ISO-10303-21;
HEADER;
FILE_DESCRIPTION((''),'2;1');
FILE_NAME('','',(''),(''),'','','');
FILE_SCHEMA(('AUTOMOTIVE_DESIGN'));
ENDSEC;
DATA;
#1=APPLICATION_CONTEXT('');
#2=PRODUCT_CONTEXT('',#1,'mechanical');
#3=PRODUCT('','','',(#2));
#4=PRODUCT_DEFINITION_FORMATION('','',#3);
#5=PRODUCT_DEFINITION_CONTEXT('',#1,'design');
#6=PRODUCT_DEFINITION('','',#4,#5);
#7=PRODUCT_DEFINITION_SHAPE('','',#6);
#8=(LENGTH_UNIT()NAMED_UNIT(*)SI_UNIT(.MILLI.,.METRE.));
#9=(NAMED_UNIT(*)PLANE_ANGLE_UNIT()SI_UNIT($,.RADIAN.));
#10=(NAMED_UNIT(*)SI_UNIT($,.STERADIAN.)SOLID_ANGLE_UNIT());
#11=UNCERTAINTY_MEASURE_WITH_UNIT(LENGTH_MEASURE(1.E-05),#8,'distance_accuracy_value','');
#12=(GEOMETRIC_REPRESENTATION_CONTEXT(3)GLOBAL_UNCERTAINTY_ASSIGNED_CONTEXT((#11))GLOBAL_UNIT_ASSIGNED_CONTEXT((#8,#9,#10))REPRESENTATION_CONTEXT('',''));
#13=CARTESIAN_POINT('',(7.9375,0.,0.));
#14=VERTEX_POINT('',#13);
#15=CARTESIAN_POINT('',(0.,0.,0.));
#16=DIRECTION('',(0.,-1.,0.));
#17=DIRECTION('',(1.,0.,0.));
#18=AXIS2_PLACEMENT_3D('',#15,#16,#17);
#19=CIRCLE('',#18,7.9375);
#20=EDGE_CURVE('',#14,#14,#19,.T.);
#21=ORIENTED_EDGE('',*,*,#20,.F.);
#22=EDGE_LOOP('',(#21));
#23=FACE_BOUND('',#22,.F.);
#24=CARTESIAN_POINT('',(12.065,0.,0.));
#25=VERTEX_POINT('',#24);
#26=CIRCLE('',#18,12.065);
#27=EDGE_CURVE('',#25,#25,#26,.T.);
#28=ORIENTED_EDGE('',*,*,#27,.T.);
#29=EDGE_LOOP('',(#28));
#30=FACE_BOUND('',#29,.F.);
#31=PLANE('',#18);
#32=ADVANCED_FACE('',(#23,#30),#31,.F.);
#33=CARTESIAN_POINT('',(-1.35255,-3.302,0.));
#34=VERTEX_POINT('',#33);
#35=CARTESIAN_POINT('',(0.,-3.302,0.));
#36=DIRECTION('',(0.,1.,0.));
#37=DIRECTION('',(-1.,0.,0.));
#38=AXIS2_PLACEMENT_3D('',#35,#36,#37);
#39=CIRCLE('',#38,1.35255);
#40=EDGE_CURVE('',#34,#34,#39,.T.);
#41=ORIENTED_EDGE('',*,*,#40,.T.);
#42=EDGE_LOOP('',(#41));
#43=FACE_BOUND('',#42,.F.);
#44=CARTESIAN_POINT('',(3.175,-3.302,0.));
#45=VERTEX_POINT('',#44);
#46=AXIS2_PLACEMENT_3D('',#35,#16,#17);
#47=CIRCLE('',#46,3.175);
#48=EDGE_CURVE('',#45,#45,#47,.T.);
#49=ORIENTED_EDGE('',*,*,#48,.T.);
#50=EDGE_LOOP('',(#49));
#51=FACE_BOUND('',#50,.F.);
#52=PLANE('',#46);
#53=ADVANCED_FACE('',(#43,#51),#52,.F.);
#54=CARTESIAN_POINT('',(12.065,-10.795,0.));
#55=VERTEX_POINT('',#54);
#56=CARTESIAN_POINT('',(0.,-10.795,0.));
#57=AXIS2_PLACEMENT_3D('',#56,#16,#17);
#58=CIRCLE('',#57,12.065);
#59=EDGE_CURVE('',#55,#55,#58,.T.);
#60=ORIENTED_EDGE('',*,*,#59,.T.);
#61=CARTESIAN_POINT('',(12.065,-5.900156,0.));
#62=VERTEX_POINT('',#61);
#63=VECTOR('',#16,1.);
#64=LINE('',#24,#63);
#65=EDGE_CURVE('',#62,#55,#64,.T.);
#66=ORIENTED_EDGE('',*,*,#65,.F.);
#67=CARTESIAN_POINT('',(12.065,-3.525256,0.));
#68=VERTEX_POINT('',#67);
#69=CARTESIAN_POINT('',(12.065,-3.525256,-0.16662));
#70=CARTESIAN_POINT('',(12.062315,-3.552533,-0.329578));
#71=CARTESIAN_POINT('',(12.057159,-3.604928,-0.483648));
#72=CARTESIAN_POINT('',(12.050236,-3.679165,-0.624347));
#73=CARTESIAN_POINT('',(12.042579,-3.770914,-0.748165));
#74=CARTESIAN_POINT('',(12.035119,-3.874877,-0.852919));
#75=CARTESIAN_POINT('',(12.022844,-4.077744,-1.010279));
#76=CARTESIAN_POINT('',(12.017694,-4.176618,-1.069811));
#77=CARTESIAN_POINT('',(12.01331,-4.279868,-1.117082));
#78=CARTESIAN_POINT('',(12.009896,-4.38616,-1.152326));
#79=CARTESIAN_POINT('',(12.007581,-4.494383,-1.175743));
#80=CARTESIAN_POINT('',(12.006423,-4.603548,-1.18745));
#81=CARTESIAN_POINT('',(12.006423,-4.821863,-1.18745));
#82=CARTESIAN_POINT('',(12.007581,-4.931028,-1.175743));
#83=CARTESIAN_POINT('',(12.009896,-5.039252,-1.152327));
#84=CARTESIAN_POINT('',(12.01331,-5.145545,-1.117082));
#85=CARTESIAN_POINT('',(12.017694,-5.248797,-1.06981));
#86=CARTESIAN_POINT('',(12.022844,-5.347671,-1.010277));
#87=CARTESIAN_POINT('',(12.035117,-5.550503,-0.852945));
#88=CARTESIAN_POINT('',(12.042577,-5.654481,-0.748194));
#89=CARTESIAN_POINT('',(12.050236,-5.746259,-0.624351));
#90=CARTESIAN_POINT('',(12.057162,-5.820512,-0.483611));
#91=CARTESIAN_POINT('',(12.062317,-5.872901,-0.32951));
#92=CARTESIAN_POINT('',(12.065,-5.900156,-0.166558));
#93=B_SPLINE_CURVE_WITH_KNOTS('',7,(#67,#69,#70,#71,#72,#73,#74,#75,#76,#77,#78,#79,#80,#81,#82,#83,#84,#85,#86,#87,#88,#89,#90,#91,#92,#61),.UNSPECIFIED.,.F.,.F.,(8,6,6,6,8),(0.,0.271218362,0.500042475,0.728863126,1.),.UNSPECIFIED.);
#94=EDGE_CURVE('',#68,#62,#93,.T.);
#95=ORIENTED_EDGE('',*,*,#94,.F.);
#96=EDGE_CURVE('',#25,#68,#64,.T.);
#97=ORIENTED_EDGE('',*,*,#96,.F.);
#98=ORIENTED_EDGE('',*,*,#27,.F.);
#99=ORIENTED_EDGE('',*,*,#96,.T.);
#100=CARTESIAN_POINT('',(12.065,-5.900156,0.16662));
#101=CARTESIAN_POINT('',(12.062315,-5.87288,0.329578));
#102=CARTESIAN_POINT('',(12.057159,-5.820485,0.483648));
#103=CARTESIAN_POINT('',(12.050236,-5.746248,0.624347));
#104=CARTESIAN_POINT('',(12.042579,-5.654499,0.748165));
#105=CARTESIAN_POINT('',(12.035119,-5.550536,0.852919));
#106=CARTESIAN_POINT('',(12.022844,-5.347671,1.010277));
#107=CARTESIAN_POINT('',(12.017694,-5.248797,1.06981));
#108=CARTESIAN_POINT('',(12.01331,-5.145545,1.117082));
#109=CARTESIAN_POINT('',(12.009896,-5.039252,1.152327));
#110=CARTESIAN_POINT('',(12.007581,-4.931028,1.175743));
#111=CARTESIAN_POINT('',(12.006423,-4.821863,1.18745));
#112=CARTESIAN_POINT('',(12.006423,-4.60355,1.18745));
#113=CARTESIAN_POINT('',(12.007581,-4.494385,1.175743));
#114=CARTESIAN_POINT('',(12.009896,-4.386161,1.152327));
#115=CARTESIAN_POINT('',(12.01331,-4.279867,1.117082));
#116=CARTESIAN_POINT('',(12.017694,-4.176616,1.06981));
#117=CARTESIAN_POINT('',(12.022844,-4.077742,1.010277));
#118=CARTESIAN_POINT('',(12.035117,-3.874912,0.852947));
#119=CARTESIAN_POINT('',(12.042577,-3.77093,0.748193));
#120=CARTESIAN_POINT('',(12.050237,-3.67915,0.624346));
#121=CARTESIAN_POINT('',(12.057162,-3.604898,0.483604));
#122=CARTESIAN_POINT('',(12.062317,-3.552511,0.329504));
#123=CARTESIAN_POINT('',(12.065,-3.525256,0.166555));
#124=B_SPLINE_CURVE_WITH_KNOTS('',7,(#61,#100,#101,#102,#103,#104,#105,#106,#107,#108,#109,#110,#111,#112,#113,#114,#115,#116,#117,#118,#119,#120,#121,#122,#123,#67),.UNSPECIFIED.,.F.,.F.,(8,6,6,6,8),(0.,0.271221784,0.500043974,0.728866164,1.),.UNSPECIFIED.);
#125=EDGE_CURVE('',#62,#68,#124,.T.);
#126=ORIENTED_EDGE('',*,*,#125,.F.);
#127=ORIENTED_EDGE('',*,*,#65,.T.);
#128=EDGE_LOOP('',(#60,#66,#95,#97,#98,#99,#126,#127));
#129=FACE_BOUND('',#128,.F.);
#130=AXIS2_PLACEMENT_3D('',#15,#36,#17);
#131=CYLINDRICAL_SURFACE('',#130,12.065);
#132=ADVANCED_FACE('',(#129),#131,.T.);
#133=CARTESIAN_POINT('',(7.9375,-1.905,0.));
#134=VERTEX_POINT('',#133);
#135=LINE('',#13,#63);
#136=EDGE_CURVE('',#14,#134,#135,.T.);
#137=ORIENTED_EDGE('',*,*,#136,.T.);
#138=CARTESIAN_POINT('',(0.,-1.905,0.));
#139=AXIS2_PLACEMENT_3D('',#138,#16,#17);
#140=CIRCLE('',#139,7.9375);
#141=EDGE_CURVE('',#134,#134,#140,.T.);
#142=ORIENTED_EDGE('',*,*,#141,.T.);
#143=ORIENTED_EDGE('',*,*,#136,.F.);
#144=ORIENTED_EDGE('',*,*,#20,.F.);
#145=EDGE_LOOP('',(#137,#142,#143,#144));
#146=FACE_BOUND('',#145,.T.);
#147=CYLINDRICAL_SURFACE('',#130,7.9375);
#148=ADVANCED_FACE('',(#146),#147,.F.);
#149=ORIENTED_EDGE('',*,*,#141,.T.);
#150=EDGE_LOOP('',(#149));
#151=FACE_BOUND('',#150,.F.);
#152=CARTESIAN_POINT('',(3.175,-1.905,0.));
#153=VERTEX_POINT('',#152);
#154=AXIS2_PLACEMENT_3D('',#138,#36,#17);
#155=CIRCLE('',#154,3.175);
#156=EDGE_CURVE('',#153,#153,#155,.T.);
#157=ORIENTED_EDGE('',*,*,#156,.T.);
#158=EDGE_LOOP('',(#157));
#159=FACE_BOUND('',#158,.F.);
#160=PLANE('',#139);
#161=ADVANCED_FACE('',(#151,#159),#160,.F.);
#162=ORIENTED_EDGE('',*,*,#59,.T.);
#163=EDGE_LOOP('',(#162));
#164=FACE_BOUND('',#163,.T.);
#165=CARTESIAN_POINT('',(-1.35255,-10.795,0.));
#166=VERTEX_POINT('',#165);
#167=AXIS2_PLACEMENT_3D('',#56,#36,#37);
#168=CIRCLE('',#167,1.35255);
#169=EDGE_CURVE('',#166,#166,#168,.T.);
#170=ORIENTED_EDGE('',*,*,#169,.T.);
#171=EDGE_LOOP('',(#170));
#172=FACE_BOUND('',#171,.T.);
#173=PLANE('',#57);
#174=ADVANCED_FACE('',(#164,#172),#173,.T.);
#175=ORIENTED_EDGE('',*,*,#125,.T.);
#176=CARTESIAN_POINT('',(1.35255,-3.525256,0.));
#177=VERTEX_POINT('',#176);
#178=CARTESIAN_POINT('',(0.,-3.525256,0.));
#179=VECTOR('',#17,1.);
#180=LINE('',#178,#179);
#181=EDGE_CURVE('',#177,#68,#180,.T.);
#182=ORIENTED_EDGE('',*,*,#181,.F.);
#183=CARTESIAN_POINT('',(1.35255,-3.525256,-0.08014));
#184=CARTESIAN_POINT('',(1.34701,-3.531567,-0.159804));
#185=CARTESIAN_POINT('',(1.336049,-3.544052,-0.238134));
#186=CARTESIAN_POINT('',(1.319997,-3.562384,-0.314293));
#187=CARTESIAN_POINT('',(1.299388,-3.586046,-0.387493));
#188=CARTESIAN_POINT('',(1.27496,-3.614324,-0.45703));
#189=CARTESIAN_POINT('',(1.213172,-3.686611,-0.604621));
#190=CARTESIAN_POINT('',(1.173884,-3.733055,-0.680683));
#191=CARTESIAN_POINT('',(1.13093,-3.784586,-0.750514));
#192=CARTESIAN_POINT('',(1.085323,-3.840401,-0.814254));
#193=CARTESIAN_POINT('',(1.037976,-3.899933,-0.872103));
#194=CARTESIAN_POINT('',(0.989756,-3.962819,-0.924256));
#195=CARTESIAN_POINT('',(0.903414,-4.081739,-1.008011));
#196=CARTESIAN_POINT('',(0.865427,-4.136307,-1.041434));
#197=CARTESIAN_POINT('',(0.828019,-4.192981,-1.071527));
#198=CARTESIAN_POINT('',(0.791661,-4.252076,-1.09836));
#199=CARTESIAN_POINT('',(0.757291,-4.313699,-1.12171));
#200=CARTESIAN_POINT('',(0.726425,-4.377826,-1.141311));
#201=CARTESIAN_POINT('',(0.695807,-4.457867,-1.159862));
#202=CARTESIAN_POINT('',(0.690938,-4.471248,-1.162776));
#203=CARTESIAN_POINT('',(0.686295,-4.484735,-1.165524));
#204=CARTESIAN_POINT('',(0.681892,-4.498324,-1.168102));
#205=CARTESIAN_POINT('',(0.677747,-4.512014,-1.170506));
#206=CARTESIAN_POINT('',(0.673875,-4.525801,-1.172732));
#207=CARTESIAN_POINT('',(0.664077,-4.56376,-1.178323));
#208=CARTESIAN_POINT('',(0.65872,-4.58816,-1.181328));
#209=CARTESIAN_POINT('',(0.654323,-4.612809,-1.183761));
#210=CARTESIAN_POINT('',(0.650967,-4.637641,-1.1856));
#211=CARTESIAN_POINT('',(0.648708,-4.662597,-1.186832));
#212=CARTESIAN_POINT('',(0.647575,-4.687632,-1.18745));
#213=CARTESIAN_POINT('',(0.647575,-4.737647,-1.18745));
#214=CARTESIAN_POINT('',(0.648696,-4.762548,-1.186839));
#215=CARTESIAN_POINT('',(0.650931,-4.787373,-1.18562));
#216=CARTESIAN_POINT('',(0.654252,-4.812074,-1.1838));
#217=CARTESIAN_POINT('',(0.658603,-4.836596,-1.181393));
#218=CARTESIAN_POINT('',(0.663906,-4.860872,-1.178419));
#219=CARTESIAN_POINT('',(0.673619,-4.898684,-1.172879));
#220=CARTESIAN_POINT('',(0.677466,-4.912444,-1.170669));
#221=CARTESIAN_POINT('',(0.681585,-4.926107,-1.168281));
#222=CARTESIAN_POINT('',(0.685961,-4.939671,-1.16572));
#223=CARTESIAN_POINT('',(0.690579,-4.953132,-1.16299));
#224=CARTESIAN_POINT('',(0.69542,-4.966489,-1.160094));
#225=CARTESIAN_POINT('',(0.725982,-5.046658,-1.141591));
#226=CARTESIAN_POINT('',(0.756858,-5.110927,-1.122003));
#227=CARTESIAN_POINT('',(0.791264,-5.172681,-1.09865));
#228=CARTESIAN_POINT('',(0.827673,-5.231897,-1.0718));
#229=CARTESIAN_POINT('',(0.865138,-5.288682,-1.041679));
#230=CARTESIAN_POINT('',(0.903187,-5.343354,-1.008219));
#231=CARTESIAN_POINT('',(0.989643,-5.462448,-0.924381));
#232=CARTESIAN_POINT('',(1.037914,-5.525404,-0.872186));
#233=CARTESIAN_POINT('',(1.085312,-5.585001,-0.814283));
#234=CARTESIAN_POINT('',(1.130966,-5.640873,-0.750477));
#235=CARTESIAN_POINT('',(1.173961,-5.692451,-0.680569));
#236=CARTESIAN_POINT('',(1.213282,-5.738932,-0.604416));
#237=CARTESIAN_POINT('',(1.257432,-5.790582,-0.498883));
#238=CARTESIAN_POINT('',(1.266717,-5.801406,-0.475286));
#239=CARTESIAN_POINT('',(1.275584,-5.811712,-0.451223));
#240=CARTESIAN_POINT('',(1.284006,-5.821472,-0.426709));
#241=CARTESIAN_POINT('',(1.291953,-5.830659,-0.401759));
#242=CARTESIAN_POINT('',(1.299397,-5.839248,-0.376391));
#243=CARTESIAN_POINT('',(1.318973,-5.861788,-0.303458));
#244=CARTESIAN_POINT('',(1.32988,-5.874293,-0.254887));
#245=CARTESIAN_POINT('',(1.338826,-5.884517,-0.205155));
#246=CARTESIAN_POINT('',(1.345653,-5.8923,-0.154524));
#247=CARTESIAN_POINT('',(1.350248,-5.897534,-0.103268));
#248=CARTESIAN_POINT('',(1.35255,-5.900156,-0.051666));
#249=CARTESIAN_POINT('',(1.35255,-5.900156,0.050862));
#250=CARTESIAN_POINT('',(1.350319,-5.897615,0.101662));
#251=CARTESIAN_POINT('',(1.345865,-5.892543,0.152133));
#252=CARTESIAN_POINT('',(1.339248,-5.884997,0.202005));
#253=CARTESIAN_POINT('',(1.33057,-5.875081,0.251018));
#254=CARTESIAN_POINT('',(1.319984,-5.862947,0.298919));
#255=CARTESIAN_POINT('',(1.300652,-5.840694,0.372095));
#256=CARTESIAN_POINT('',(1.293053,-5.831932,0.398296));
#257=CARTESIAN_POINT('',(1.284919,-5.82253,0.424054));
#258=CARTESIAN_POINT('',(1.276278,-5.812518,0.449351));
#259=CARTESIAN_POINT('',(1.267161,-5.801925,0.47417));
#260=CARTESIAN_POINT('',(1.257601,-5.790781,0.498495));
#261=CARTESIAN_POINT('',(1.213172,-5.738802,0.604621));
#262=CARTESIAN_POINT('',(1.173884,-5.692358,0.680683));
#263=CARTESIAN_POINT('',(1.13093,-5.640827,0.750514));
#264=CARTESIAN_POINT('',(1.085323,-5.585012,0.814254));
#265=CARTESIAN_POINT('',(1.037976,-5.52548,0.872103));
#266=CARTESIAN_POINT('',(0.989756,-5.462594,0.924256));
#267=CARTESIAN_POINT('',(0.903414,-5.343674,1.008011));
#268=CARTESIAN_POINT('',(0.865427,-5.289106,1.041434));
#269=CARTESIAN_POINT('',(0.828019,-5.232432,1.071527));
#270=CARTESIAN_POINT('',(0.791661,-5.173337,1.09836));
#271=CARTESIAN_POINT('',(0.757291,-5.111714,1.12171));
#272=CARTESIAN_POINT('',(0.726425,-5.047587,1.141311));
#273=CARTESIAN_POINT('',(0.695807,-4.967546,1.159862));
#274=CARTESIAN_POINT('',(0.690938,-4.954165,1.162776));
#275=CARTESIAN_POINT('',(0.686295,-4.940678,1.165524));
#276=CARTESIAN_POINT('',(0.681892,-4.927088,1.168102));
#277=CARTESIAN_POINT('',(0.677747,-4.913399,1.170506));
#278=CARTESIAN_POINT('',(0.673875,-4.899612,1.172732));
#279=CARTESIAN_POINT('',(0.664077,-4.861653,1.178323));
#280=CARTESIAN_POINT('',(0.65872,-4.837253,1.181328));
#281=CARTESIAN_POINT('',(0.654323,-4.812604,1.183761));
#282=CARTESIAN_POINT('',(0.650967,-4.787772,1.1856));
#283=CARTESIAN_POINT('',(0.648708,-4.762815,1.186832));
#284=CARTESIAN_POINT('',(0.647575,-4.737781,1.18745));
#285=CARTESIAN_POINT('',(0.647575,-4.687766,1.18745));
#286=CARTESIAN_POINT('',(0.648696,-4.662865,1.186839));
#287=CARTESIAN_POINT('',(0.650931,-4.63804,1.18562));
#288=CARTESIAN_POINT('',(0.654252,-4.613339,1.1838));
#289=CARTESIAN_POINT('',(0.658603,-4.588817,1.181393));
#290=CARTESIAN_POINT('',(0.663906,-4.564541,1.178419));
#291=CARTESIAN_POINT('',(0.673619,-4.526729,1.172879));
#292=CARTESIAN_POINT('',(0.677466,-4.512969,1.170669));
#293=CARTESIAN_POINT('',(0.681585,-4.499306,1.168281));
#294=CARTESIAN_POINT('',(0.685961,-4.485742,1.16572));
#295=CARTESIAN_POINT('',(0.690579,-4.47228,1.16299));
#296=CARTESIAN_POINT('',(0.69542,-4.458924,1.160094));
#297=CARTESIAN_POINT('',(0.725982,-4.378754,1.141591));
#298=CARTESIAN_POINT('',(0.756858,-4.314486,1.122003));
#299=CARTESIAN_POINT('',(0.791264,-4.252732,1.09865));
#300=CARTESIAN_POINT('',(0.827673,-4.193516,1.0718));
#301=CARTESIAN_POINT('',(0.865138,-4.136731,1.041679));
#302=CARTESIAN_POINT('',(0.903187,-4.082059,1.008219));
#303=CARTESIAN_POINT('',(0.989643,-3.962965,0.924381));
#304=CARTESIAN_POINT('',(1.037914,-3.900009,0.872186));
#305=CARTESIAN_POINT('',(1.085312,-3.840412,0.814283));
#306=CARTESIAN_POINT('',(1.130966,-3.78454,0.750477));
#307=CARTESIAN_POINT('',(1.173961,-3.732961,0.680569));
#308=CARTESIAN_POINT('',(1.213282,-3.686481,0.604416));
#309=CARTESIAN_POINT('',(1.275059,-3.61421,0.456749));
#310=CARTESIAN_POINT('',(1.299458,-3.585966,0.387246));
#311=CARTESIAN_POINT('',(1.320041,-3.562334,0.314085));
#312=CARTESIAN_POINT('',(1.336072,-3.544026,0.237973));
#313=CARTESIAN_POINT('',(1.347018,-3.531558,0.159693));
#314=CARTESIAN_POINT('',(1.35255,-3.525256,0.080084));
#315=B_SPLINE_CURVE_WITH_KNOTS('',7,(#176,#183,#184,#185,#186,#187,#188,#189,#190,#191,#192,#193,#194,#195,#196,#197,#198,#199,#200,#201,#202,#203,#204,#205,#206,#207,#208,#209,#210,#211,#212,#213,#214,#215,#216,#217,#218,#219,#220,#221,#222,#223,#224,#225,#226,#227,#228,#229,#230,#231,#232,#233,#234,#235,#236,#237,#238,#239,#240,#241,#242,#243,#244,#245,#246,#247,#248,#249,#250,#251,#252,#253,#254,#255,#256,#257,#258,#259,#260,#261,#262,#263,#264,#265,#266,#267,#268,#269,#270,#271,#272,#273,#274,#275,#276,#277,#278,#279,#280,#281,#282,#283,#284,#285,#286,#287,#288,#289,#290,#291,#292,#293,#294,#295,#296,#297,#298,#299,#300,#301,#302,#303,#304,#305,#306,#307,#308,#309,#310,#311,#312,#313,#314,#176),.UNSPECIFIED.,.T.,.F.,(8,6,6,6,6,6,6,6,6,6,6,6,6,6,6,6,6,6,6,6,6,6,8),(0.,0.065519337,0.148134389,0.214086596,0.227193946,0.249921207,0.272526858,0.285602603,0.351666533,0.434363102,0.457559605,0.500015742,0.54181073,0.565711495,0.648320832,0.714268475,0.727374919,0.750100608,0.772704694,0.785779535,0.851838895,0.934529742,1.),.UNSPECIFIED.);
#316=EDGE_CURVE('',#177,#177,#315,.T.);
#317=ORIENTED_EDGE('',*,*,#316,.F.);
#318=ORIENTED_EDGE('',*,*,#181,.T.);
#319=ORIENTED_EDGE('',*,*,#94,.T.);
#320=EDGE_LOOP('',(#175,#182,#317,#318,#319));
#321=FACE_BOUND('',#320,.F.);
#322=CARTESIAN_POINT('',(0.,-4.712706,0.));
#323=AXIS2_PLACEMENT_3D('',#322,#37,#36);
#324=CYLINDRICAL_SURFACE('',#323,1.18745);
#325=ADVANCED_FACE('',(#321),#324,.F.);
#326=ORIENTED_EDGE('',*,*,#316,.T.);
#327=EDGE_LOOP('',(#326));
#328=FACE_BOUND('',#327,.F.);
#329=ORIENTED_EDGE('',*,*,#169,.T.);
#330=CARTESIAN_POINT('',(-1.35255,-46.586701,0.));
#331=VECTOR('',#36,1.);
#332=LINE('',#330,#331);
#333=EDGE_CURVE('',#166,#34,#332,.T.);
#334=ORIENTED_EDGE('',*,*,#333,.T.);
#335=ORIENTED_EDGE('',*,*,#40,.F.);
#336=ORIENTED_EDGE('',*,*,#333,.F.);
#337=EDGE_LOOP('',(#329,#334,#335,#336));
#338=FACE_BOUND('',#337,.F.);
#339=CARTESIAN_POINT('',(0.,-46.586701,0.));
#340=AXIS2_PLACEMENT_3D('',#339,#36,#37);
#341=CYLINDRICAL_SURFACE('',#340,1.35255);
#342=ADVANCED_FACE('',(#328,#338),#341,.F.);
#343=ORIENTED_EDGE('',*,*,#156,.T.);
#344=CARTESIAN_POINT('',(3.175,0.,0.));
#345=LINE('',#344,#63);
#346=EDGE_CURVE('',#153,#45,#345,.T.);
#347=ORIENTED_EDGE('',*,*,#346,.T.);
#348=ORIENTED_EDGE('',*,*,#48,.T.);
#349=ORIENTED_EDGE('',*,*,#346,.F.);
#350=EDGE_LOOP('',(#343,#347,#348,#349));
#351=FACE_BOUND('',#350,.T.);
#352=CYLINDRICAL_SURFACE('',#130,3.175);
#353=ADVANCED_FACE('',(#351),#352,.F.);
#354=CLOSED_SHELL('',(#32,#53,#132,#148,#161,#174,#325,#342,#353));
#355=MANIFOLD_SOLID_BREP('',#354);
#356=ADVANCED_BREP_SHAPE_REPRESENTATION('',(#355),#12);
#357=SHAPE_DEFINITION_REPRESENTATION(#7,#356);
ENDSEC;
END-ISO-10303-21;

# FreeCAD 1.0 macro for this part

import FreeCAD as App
import Part
import Sketcher

V = App.Vector
Q = App.Units.Quantity

doc = App.newDocument("Part")
params = doc.addObject("Spreadsheet::Sheet", "Params")
for row, (alias, value) in enumerate([
    ("sketch1_diameter", "0.95 in"),
    ("pad1_length", "0.425 in"),
    ("sketch2_diameter", "0.625 in"),
    ("pocket1_length", "0.075 in"),
    ("sketch3_diameter", "0.25 in"),
    ("pocket2_length", "0.13 in"),
    ("hole_diameter", "0.1065 in"),
], start=1):
    params.set(f"A{row}", alias)
    params.set(f"B{row}", "=" + value)
    params.setAlias(f"B{row}", alias)

body = doc.addObject("PartDesign::Body", "Body")

# Sketch on XZ plane
sketch1 = doc.addObject("Sketcher::SketchObject", "Sketch")
body.addObject(sketch1)
sketch1.AttachmentSupport = (doc.XZ_Plane, [""])
sketch1.MapMode = "FlatFace"
sketch1.addGeometry(Part.Circle(V(0, 0, 0), V(0, 0, 1), 12.065), False)
sketch1.addConstraint(Sketcher.Constraint("Coincident", 0, 3, -1, 1))
sketch1.addConstraint(Sketcher.Constraint("Diameter", 0, Q("0.95 in")))
sketch1.setExpression("Constraints[1]", "Params.sketch1_diameter")
pad1 = doc.addObject("PartDesign::Pad", "Pad")
body.addObject(pad1)
pad1.Profile = sketch1
pad1.setExpression("Length", "Params.pad1_length")

# Sketch on XZ plane
sketch2 = doc.addObject("Sketcher::SketchObject", "Sketch001")
body.addObject(sketch2)
sketch2.AttachmentSupport = (doc.XZ_Plane, [""])
sketch2.MapMode = "FlatFace"
sketch2.addGeometry(Part.Circle(V(0, 0, 0), V(0, 0, 1), 7.9375), False)
sketch2.addConstraint(Sketcher.Constraint("Coincident", 0, 3, -1, 1))
sketch2.addConstraint(Sketcher.Constraint("Diameter", 0, Q("0.625 in")))
sketch2.setExpression("Constraints[1]", "Params.sketch2_diameter")
pocket1 = doc.addObject("PartDesign::Pocket", "Pocket")
body.addObject(pocket1)
pocket1.Profile = sketch2
pocket1.setExpression("Length", "Params.pocket1_length")
pocket1.Reversed = True

# Sketch on XZ plane
sketch3 = doc.addObject("Sketcher::SketchObject", "Sketch002")
body.addObject(sketch3)
sketch3.AttachmentSupport = (doc.XZ_Plane, [""])
sketch3.MapMode = "FlatFace"
sketch3.addGeometry(Part.Circle(V(0, 0, 0), V(0, 0, 1), 3.175), False)
sketch3.addConstraint(Sketcher.Constraint("Coincident", 0, 3, -1, 1))
sketch3.addConstraint(Sketcher.Constraint("Diameter", 0, Q("0.25 in")))
sketch3.setExpression("Constraints[1]", "Params.sketch3_diameter")
pocket2 = doc.addObject("PartDesign::Pocket", "Pocket001")
body.addObject(pocket2)
pocket2.Profile = sketch3
pocket2.setExpression("Length", "Params.pocket2_length")
pocket2.Reversed = True

# Sketch on XZ plane
sketch4 = doc.addObject("Sketcher::SketchObject", "Sketch003")
body.addObject(sketch4)
sketch4.AttachmentSupport = (doc.XZ_Plane, [""])
sketch4.MapMode = "FlatFace"
sketch4.AttachmentOffset = App.Placement(V(0, 0, 0.425 * 25.4), App.Rotation())
sketch4.addGeometry(Part.Circle(V(0, 0, 0), V(0, 0, 1), 1.35255), False)
sketch4.addConstraint(Sketcher.Constraint("Coincident", 0, 3, -1, 1))
sketch4.addConstraint(Sketcher.Constraint("Diameter", 0, Q("0.1065 in")))
doc.recompute()
hole = doc.addObject("PartDesign::Hole", "Hole")
body.addObject(hole)
hole.Profile = sketch4
hole.ThreadType = "None"
hole.setExpression("Diameter", "Params.hole_diameter")
hole.DepthType = "ThroughAll"

# Sketch on YZ plane
sketch5 = doc.addObject("Sketcher::SketchObject", "Sketch004")
body.addObject(sketch5)
sketch5.AttachmentSupport = (doc.YZ_Plane, [""])
sketch5.MapMode = "FlatFace"
sketch5.addGeometry(Part.Circle(V(-4.712706, 0, 0), V(0, 0, 1), 1.18745), False)
sketch5.addConstraint(Sketcher.Constraint("PointOnObject", 0, 3, -1))
sketch5.addConstraint(Sketcher.Constraint("Diameter", 0, Q("0.0935 in")))
sketch5.addConstraint(Sketcher.Constraint("DistanceX", 0, 3, -1, 1, Q("4.712706 mm")))
pocket3 = doc.addObject("PartDesign::Pocket", "Pocket002")
body.addObject(pocket3)
pocket3.Profile = sketch5
pocket3.Type = "ThroughAll"
pocket3.Reversed = True

doc.recompute()
